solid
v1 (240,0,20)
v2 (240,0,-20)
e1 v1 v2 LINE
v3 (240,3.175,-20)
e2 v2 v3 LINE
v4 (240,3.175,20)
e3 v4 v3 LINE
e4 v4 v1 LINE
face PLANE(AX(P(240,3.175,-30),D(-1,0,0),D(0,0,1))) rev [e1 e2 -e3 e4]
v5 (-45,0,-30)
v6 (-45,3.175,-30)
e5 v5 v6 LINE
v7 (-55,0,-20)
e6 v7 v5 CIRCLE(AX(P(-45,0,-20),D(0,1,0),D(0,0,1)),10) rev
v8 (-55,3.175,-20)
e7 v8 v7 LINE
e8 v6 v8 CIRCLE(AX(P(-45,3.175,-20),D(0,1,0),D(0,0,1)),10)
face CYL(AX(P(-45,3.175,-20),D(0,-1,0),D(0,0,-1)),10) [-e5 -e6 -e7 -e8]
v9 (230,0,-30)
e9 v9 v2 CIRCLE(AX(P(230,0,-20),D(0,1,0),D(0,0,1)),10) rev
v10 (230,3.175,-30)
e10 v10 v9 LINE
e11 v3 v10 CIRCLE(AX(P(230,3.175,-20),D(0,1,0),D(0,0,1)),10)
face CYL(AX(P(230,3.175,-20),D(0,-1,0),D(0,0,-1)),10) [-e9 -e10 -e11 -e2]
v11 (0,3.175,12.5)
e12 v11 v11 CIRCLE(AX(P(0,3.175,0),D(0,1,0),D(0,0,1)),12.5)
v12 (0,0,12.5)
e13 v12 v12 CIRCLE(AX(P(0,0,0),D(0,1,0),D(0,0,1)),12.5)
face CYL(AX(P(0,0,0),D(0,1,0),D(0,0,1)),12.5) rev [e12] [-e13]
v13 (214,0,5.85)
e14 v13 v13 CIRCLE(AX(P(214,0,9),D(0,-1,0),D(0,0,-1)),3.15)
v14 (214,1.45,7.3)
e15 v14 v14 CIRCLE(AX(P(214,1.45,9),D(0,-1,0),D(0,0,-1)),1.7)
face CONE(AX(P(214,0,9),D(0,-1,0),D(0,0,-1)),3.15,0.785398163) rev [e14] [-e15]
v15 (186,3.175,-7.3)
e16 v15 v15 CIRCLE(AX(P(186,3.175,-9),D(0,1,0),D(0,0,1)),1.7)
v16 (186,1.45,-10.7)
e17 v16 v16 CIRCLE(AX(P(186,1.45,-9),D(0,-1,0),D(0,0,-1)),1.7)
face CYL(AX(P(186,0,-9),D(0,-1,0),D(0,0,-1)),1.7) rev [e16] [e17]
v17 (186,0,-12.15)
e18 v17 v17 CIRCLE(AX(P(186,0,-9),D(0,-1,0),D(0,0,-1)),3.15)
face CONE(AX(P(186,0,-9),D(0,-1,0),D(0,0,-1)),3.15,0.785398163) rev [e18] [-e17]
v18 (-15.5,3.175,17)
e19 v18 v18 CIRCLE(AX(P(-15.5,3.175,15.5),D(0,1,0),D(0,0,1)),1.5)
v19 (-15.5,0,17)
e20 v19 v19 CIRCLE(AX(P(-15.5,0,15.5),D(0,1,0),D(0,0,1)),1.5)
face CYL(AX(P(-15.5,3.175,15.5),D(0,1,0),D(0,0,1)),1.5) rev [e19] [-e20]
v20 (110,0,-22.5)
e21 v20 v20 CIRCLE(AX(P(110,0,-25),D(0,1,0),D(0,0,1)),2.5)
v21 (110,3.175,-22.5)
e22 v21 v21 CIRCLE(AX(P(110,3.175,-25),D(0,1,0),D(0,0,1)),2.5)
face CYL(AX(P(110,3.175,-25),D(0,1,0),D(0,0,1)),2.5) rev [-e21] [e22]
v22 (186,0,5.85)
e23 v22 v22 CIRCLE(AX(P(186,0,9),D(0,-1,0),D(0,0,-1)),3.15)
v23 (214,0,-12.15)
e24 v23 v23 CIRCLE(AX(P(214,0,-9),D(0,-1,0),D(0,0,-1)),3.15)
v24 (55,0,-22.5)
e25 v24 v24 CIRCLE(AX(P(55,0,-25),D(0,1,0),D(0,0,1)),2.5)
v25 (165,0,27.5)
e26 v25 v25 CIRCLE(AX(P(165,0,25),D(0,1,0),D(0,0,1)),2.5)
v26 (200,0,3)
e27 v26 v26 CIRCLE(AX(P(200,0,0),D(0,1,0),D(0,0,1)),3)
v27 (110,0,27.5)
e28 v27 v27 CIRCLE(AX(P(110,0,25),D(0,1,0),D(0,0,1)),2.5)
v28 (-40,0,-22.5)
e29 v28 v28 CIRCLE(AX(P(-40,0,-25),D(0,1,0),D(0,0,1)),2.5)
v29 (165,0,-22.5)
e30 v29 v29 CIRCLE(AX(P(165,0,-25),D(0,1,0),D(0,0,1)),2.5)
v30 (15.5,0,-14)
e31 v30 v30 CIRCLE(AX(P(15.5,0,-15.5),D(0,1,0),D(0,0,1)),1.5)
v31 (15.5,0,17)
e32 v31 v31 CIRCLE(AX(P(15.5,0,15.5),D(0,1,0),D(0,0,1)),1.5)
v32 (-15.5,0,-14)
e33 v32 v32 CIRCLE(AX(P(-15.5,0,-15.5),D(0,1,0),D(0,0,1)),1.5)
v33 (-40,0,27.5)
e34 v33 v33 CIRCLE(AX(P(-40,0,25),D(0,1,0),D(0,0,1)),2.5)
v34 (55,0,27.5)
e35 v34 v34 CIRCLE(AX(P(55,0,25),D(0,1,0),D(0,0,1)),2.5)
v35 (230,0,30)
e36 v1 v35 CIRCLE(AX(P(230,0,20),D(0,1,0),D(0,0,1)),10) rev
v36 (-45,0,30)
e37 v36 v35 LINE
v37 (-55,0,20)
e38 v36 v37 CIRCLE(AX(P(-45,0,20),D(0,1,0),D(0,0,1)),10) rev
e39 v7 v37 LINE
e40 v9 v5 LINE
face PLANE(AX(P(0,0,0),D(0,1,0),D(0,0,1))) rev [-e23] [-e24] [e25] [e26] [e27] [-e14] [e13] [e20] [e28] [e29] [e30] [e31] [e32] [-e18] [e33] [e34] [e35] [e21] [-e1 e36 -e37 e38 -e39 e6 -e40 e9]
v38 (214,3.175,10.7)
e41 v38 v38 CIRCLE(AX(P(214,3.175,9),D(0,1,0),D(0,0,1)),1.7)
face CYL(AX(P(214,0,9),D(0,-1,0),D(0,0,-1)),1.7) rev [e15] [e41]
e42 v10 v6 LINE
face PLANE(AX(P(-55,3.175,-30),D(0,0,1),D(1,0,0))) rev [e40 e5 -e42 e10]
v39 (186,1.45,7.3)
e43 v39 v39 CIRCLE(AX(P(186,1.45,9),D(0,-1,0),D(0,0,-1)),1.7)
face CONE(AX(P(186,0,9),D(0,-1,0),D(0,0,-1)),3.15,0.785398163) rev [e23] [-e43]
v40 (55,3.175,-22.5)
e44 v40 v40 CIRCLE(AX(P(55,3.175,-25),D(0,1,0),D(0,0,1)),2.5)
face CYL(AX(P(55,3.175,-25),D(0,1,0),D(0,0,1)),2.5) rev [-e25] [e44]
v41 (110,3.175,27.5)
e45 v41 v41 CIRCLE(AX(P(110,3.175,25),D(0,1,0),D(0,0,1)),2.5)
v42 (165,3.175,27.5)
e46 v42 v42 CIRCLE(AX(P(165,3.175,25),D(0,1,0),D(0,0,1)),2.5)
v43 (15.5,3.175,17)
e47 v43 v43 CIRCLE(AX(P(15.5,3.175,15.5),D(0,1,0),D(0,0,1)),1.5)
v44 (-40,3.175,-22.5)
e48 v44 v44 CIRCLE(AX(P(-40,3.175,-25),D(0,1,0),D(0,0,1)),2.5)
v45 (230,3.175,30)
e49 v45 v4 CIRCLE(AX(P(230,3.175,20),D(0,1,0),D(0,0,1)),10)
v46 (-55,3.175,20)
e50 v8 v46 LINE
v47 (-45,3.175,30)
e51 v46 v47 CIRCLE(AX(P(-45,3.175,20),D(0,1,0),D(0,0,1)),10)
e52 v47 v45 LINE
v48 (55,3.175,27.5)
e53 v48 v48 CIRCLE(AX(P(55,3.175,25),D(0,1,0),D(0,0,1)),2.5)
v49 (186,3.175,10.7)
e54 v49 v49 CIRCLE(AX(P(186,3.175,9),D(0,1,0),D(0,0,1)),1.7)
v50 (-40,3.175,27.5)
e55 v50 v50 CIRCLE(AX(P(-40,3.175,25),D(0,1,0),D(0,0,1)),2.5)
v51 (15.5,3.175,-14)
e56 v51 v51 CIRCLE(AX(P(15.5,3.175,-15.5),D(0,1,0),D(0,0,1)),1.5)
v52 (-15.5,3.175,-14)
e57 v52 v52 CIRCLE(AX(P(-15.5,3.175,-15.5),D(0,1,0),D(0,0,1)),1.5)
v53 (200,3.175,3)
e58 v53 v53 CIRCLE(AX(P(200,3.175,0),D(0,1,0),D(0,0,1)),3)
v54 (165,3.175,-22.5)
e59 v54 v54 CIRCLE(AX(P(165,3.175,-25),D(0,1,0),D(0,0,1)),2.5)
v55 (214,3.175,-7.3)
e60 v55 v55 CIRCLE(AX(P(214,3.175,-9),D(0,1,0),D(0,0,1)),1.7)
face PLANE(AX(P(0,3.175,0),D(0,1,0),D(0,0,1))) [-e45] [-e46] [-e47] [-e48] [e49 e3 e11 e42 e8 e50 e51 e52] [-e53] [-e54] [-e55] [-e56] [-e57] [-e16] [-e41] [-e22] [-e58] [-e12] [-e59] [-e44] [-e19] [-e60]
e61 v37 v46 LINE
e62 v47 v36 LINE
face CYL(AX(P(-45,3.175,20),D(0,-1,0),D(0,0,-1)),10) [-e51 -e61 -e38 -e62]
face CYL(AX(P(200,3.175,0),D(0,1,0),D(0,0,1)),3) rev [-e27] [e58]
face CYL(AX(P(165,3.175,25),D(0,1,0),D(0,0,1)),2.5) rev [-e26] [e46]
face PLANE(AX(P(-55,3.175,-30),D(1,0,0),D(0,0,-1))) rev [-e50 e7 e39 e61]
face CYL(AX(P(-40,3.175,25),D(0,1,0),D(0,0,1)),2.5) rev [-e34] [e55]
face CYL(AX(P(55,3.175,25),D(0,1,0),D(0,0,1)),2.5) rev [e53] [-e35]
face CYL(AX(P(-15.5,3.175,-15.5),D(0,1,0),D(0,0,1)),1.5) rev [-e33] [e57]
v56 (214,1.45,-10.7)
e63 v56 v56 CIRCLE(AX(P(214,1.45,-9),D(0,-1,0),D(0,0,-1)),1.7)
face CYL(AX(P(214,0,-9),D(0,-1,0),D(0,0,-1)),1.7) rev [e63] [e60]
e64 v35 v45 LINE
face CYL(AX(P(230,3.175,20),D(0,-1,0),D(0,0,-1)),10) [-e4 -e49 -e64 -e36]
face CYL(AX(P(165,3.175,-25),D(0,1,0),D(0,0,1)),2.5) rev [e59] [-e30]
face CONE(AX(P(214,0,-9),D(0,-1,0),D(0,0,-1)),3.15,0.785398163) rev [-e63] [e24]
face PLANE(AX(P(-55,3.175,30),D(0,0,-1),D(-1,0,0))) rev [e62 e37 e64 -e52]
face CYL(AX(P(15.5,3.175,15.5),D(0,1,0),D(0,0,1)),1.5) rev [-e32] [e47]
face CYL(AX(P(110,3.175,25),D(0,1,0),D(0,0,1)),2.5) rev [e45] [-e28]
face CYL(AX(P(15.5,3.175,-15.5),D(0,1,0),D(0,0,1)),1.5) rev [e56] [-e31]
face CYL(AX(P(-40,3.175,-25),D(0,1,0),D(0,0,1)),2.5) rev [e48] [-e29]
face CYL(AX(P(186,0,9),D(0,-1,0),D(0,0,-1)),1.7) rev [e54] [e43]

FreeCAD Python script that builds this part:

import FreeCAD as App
import Part
import Sketcher
from FreeCAD import Vector
Q = App.Units.Quantity


def edges_at(feature, points):
    """Names of the edges that pass closest to the given points."""
    edges = feature.Shape.Edges
    near = lambda p: min(range(len(edges)), key=lambda i: edges[i].distToShape(Part.Vertex(*p))[0])
    return sorted({f"Edge{near(p) + 1}" for p in points})


def add_polygon(sketch, points):
    """Adds a closed chain of lines whose ends are joined by coincident constraints."""
    first, n = sketch.GeometryCount, len(points)
    for a, b in zip(points, points[1:] + points[:1]):
        sketch.addGeometry(Part.LineSegment(App.Vector(*a, 0), App.Vector(*b, 0)), False)
    for i in range(n):
        sketch.addConstraint(Sketcher.Constraint("Coincident", first + i, 2, first + (i + 1) % n, 1))

doc = App.newDocument("Part")
params = doc.addObject("Spreadsheet::Sheet", "Params")
for row, (alias, value) in enumerate([
    ("sketch1_width", "295 mm"),
    ("sketch1_height", "60 mm"),
    ("pad1_length", "3.175 mm"),
    ("fillet_radius", "10 mm"),
    ("sketch2_diameter", "3 mm"),
    ("hole_diameter", "3 mm"),
    ("sketch3_diameter", "25 mm"),
    ("sketch4_diameter", "6 mm"),
    ("hole2_diameter", "6 mm"),
    ("sketch5_diameter", "3.4 mm"),
    ("hole3_diameter", "3.4 mm"),
    ("hole3_csink_diameter", "6.3 mm"),
    ("sketch6_diameter", "5 mm"),
    ("hole4_diameter", "5 mm"),
], start=1):
    params.set(f"A{row}", alias)
    params.set(f"B{row}", "=" + value)
    params.setAlias(f"B{row}", alias)

body = doc.addObject("PartDesign::Body", "Body")

# Sketch on XZ plane
sketch1 = doc.addObject("Sketcher::SketchObject", "Sketch")
body.addObject(sketch1)
sketch1.AttachmentSupport = (doc.XZ_Plane, [""])
sketch1.MapMode = "FlatFace"
add_polygon(sketch1, [(-55, -30), (-55, 30), (240, 30), (240, -30)])  # lines 0-3
sketch1.addConstraint([
    Sketcher.Constraint("Vertical", 0),
    Sketcher.Constraint("Horizontal", 1),
    Sketcher.Constraint("Vertical", 2),
    Sketcher.Constraint("Horizontal", 3),
    Sketcher.Constraint("DistanceX", 1, 1, 1, 2, Q("295 mm")),
    Sketcher.Constraint("DistanceY", 0, 1, 0, 2, Q("60 mm")),
    Sketcher.Constraint("DistanceX", 0, 2, -1, 1, Q("55 mm")),
    Sketcher.Constraint("DistanceY", -1, 1, 0, 2, Q("30 mm")),
])
sketch1.setExpression("Constraints[8]", "Params.sketch1_width")
sketch1.setExpression("Constraints[9]", "Params.sketch1_height")
pad1 = doc.addObject("PartDesign::Pad", "Pad")
body.addObject(pad1)
pad1.Profile = sketch1
pad1.setExpression("Length", "Params.pad1_length")
pad1.Reversed = True
doc.recompute()

fillet = doc.addObject("PartDesign::Fillet", "Fillet")
body.addObject(fillet)
fillet.Base = (pad1, edges_at(pad1, [
    (-55, 1.587, -30),
    (240, 1.587, -30),
    (240, 1.587, 30),
    (-55, 1.587, 30),
]))
fillet.setExpression("Radius", "Params.fillet_radius")

# Sketch on XZ plane
sketch2 = doc.addObject("Sketcher::SketchObject", "Sketch001")
body.addObject(sketch2)
sketch2.AttachmentSupport = (doc.XZ_Plane, [""])
sketch2.MapMode = "FlatFace"
sketch2.AttachmentOffset = App.Placement(Vector(0, 0, -3.175), App.Rotation())
sketch2.addGeometry([
    Part.Circle(Vector(-15.5, -15.5, 0), Vector(0, 0, 1), 1.5),
    Part.Circle(Vector(15.5, -15.5, 0), Vector(0, 0, 1), 1.5),
    Part.Circle(Vector(15.5, 15.5, 0), Vector(0, 0, 1), 1.5),
    Part.Circle(Vector(-15.5, 15.5, 0), Vector(0, 0, 1), 1.5),
], False)
sketch2.addConstraint([
    Sketcher.Constraint("Equal", 0, 1),
    Sketcher.Constraint("Equal", 1, 2),
    Sketcher.Constraint("Equal", 2, 3),
    Sketcher.Constraint("Symmetric", 0, 3, 2, 3, -1, 1),
    Sketcher.Constraint("Symmetric", 1, 3, 3, 3, -1, 1),
    Sketcher.Constraint("Symmetric", 0, 3, 1, 3, -2),
    Sketcher.Constraint("Diameter", 0, Q("3 mm")),
    Sketcher.Constraint("DistanceX", 0, 3, 1, 3, Q("31 mm")),
    Sketcher.Constraint("DistanceY", 1, 3, 2, 3, Q("31 mm")),
])
sketch2.setExpression("Constraints[6]", "Params.sketch2_diameter")
doc.recompute()
hole = doc.addObject("PartDesign::Hole", "Hole")
body.addObject(hole)
hole.Profile = sketch2
hole.ThreadType = "None"
hole.setExpression("Diameter", "Params.hole_diameter")
hole.DepthType = "ThroughAll"
hole.Reversed = True

# Sketch on XZ plane
sketch3 = doc.addObject("Sketcher::SketchObject", "Sketch002")
body.addObject(sketch3)
sketch3.AttachmentSupport = (doc.XZ_Plane, [""])
sketch3.MapMode = "FlatFace"
sketch3.AttachmentOffset = App.Placement(Vector(0, 0, -3.175), App.Rotation())
sketch3.addGeometry(Part.Circle(Vector(0, 0, 0), Vector(0, 0, 1), 12), False)
sketch3.addConstraint([
    Sketcher.Constraint("Coincident", 0, 3, -1, 1),
    Sketcher.Constraint("Diameter", 0, Q("25 mm")),
])
sketch3.setExpression("Constraints[1]", "Params.sketch3_diameter")
pocket1 = doc.addObject("PartDesign::Pocket", "Pocket")
body.addObject(pocket1)
pocket1.Profile = sketch3
pocket1.Type = "ThroughAll"
pocket1.Reversed = True

# Sketch on XZ plane
sketch4 = doc.addObject("Sketcher::SketchObject", "Sketch003")
body.addObject(sketch4)
sketch4.AttachmentSupport = (doc.XZ_Plane, [""])
sketch4.MapMode = "FlatFace"
sketch4.AttachmentOffset = App.Placement(Vector(0, 0, -3.175), App.Rotation())
sketch4.addGeometry(Part.Circle(Vector(200, 0, 0), Vector(0, 0, 1), 3), False)
sketch4.addConstraint([
    Sketcher.Constraint("PointOnObject", 0, 3, -1),
    Sketcher.Constraint("Diameter", 0, Q("6 mm")),
    Sketcher.Constraint("DistanceX", -1, 1, 0, 3, Q("200 mm")),
])
sketch4.setExpression("Constraints[1]", "Params.sketch4_diameter")
doc.recompute()
hole2 = doc.addObject("PartDesign::Hole", "Hole001")
body.addObject(hole2)
hole2.Profile = sketch4
hole2.ThreadType = "None"
hole2.setExpression("Diameter", "Params.hole2_diameter")
hole2.DepthType = "ThroughAll"
hole2.Reversed = True

# Sketch on XZ plane
sketch5 = doc.addObject("Sketcher::SketchObject", "Sketch004")
body.addObject(sketch5)
sketch5.AttachmentSupport = (doc.XZ_Plane, [""])
sketch5.MapMode = "FlatFace"
sketch5.addGeometry([
    Part.Circle(Vector(214, -9, 0), Vector(0, 0, 1), 1.7),
    Part.Circle(Vector(186, -9, 0), Vector(0, 0, 1), 1.7),
    Part.Circle(Vector(186, 9, 0), Vector(0, 0, 1), 1.7),
    Part.Circle(Vector(214, 9, 0), Vector(0, 0, 1), 1.7),
], False)
sketch5.addConstraint([
    Sketcher.Constraint("Equal", 0, 1),
    Sketcher.Constraint("Equal", 1, 2),
    Sketcher.Constraint("Equal", 2, 3),
    Sketcher.Constraint("Symmetric", 1, 3, 2, 3, -1),
    Sketcher.Constraint("Symmetric", 0, 3, 3, 3, -1),
    Sketcher.Constraint("Horizontal", 0, 3, 1, 3),
    Sketcher.Constraint("Diameter", 0, Q("3.4 mm")),
    Sketcher.Constraint("DistanceX", -1, 1, 0, 3, Q("214 mm")),
    Sketcher.Constraint("DistanceY", 0, 3, -1, 1, Q("9 mm")),
    Sketcher.Constraint("DistanceX", -1, 1, 1, 3, Q("186 mm")),
])
sketch5.setExpression("Constraints[6]", "Params.sketch5_diameter")
doc.recompute()
hole3 = doc.addObject("PartDesign::Hole", "Hole002")
body.addObject(hole3)
hole3.Profile = sketch5
hole3.ThreadType = "None"
hole3.setExpression("Diameter", "Params.hole3_diameter")
hole3.DepthType = "ThroughAll"
hole3.HoleCutType = "Countersink"
hole3.setExpression("HoleCutDiameter", "Params.hole3_csink_diameter")
hole3.HoleCutCountersinkAngle = 90

# Sketch on XZ plane
sketch6 = doc.addObject("Sketcher::SketchObject", "Sketch005")
body.addObject(sketch6)
sketch6.AttachmentSupport = (doc.XZ_Plane, [""])
sketch6.MapMode = "FlatFace"
sketch6.AttachmentOffset = App.Placement(Vector(0, 0, -3.175), App.Rotation())
sketch6.addGeometry([
    Part.Circle(Vector(55, 25, 0), Vector(0, 0, 1), 2.5),  # 0
    Part.Circle(Vector(110, 25, 0), Vector(0, 0, 1), 2.5),  # 1
    Part.Circle(Vector(165, 25, 0), Vector(0, 0, 1), 2.5),  # 2
    Part.Circle(Vector(165, -25, 0), Vector(0, 0, 1), 2.5),  # 3
    Part.Circle(Vector(110, -25, 0), Vector(0, 0, 1), 2.5),  # 4
    Part.Circle(Vector(55, -25, 0), Vector(0, 0, 1), 2.5),  # 5
    Part.Circle(Vector(-40, 25, 0), Vector(0, 0, 1), 2.5),  # 6
    Part.Circle(Vector(-40, -25, 0), Vector(0, 0, 1), 2.5),  # 7
], False)
sketch6.addConstraint([
    Sketcher.Constraint("Equal", 0, 1),
    Sketcher.Constraint("Equal", 1, 2),
    Sketcher.Constraint("Equal", 2, 3),
    Sketcher.Constraint("Equal", 3, 4),
    Sketcher.Constraint("Equal", 4, 5),
    Sketcher.Constraint("Equal", 5, 6),
    Sketcher.Constraint("Equal", 6, 7),
    Sketcher.Constraint("Symmetric", 2, 3, 3, 3, -1),
    Sketcher.Constraint("Symmetric", 1, 3, 4, 3, -1),
    Sketcher.Constraint("Symmetric", 0, 3, 5, 3, -1),
    Sketcher.Constraint("Symmetric", 6, 3, 7, 3, -1),
    Sketcher.Constraint("Horizontal", 0, 3, 1, 3),
    Sketcher.Constraint("Horizontal", 1, 3, 2, 3),
    Sketcher.Constraint("Horizontal", 2, 3, 6, 3),
    Sketcher.Constraint("Diameter", 0, Q("5 mm")),
    Sketcher.Constraint("DistanceX", -1, 1, 0, 3, Q("55 mm")),
    Sketcher.Constraint("DistanceY", -1, 1, 0, 3, Q("25 mm")),
    Sketcher.Constraint("DistanceX", -1, 1, 1, 3, Q("110 mm")),
    Sketcher.Constraint("DistanceX", -1, 1, 2, 3, Q("165 mm")),
    Sketcher.Constraint("DistanceX", 6, 3, -1, 1, Q("40 mm")),
])
sketch6.setExpression("Constraints[14]", "Params.sketch6_diameter")
doc.recompute()
hole4 = doc.addObject("PartDesign::Hole", "Hole003")
body.addObject(hole4)
hole4.Profile = sketch6
hole4.ThreadType = "None"
hole4.setExpression("Diameter", "Params.hole4_diameter")
hole4.DepthType = "ThroughAll"
hole4.Reversed = True

doc.recompute()
